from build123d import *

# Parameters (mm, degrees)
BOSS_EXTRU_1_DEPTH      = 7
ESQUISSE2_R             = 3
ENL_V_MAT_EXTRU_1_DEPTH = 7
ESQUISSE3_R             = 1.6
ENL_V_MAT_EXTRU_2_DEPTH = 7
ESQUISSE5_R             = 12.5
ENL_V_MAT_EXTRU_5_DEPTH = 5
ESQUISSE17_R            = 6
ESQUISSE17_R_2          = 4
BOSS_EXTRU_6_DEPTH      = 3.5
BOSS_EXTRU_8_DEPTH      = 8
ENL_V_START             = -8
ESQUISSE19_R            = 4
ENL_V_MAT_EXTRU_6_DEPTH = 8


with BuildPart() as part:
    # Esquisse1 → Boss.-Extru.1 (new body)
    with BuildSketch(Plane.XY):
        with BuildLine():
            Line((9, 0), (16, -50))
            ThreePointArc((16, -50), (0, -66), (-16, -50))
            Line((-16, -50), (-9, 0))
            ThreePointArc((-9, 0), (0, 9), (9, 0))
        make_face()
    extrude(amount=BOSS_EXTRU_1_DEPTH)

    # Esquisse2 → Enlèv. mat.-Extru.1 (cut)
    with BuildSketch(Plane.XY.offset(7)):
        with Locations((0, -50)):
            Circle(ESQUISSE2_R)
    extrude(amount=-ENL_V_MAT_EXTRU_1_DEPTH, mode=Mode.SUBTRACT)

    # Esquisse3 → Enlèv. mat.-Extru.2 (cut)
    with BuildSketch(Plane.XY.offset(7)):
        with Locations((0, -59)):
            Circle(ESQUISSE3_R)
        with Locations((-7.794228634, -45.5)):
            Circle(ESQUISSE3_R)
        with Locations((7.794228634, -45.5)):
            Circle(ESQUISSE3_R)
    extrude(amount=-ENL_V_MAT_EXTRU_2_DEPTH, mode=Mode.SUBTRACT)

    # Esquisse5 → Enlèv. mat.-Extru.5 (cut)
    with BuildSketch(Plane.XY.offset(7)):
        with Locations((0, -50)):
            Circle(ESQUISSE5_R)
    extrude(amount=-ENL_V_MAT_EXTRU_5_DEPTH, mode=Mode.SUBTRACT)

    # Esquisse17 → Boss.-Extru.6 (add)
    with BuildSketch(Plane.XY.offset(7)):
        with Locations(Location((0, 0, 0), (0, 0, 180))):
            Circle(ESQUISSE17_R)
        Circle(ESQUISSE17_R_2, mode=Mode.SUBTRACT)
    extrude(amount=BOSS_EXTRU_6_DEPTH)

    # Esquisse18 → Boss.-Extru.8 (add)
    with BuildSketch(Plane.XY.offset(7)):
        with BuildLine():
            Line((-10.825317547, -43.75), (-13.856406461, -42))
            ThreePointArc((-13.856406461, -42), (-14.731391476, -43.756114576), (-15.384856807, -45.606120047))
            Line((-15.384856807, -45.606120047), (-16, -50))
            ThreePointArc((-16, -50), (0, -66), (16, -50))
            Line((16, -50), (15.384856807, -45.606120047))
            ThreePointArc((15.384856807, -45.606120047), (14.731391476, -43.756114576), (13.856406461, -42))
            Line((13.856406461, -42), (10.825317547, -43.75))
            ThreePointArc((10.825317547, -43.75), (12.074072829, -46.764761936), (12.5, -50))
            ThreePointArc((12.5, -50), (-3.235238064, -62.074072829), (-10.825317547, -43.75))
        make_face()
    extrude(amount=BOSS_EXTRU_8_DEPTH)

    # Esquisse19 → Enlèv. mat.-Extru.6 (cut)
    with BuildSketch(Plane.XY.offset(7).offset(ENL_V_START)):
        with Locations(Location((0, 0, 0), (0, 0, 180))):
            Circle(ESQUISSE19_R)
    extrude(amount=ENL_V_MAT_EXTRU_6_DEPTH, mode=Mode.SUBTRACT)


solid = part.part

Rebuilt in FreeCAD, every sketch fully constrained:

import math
import FreeCAD as App
import Part
import Sketcher
Q = App.Units.Quantity

doc = App.newDocument("Part")
body = doc.addObject("PartDesign::Body", "Body")

sketch1 = body.newObject("Sketcher::SketchObject", "Sketch")
sketch1.AttachmentSupport = (doc.getObject("XY_Plane"), [""])
sketch1.MapMode = "FlatFace"
sketch1.addGeometry(Part.LineSegment(App.Vector(16, -50, 0), App.Vector(9, 0, 0)), False)
sketch1.addGeometry(Part.ArcOfCircle(Part.Circle(App.Vector(0, 0, 0), App.Vector(0, 0, 1), 9), math.radians(0), math.radians(180)), False)
sketch1.addGeometry(Part.LineSegment(App.Vector(-9, 0, 0), App.Vector(-16, -50, 0)), False)
sketch1.addGeometry(Part.ArcOfCircle(Part.Circle(App.Vector(0, -50, 0), App.Vector(0, 0, 1), 16), math.radians(180), math.radians(360)), False)
sketch1.addConstraint(Sketcher.Constraint("Coincident", 0, 2, 1, 1))
sketch1.addConstraint(Sketcher.Constraint("Coincident", 1, 2, 2, 1))
sketch1.addConstraint(Sketcher.Constraint("Coincident", 2, 2, 3, 1))
sketch1.addConstraint(Sketcher.Constraint("Coincident", 3, 2, 0, 1))
sketch1.addConstraint(Sketcher.Constraint("Coincident", 1, 3, -1, 1))
sketch1.addConstraint(Sketcher.Constraint("Symmetric", 2, 2, 3, 2, -2))
sketch1.addConstraint(Sketcher.Constraint("PointOnObject", 0, 2, -1))
sketch1.addConstraint(Sketcher.Constraint("PointOnObject", 1, 2, -1))
sketch1.addConstraint(Sketcher.Constraint("Horizontal", 3, 3, 2, 2))
sketch1.addConstraint(Sketcher.Constraint("Radius", 1, 9.0))
sketch1.addConstraint(Sketcher.Constraint("Radius", 3, 16.0))
sketch1.addConstraint(Sketcher.Constraint("DistanceY", 3, 3, -1, 1, 50.0))
pad1 = body.newObject("PartDesign::Pad", "Pad")
pad1.Profile = sketch1
pad1.Length = 7

sketch2 = body.newObject("Sketcher::SketchObject", "Sketch001")
sketch2.AttachmentSupport = (doc.getObject("XY_Plane"), [""])
sketch2.MapMode = "FlatFace"
sketch2.AttachmentOffset = App.Placement(App.Vector(0, 0, 7), App.Rotation())
sketch2.addGeometry(Part.Circle(App.Vector(0, -50, 0), App.Vector(0, 0, 1), 3), False)
sketch2.addConstraint(Sketcher.Constraint("PointOnObject", 0, 3, -2))
sketch2.addConstraint(Sketcher.Constraint("Diameter", 0, 6.0))
sketch2.addConstraint(Sketcher.Constraint("DistanceY", 0, 3, -1, 1, 50.0))
pocket1 = body.newObject("PartDesign::Pocket", "Pocket")
pocket1.Profile = sketch2
pocket1.Length = 7

sketch3 = body.newObject("Sketcher::SketchObject", "Sketch002")
sketch3.AttachmentSupport = (doc.getObject("XY_Plane"), [""])
sketch3.MapMode = "FlatFace"
sketch3.AttachmentOffset = App.Placement(App.Vector(0, 0, 7), App.Rotation())
sketch3.addGeometry(Part.Circle(App.Vector(0, -59, 0), App.Vector(0, 0, 1), 1.6), False)
sketch3.addGeometry(Part.Circle(App.Vector(-7.8, -45.5, 0), App.Vector(0, 0, 1), 1.6), False)
sketch3.addGeometry(Part.Circle(App.Vector(7.8, -45.5, 0), App.Vector(0, 0, 1), 1.6), False)
sketch3.addConstraint(Sketcher.Constraint("Equal", 0, 1))
sketch3.addConstraint(Sketcher.Constraint("Equal", 1, 2))
sketch3.addConstraint(Sketcher.Constraint("Symmetric", 1, 3, 2, 3, -2))
sketch3.addConstraint(Sketcher.Constraint("PointOnObject", 0, 3, -2))
sketch3.addConstraint(Sketcher.Constraint("Diameter", 0, 3.2))
sketch3.addConstraint(Sketcher.Constraint("DistanceY", 0, 3, -1, 1, 59.0))
sketch3.addConstraint(Sketcher.Constraint("DistanceY", 1, 3, -1, 1, 45.5))
sketch3.addConstraint(Sketcher.Constraint("DistanceX", 1, 3, -1, 1, 7.794229))
pocket2 = body.newObject("PartDesign::Pocket", "Pocket001")
pocket2.Profile = sketch3
pocket2.Length = 7

sketch4 = body.newObject("Sketcher::SketchObject", "Sketch003")
sketch4.AttachmentSupport = (doc.getObject("XY_Plane"), [""])
sketch4.MapMode = "FlatFace"
sketch4.AttachmentOffset = App.Placement(App.Vector(0, 0, 7), App.Rotation())
sketch4.addGeometry(Part.Circle(App.Vector(0, -50, 0), App.Vector(0, 0, 1), 12), False)
sketch4.addConstraint(Sketcher.Constraint("PointOnObject", 0, 3, -2))
sketch4.addConstraint(Sketcher.Constraint("Diameter", 0, 25.0))
sketch4.addConstraint(Sketcher.Constraint("DistanceY", 0, 3, -1, 1, 50.0))
pocket3 = body.newObject("PartDesign::Pocket", "Pocket002")
pocket3.Profile = sketch4
pocket3.Length = 5

sketch5 = body.newObject("Sketcher::SketchObject", "Sketch004")
sketch5.AttachmentSupport = (doc.getObject("XY_Plane"), [""])
sketch5.MapMode = "FlatFace"
sketch5.AttachmentOffset = App.Placement(App.Vector(0, 0, 7), App.Rotation())
sketch5.addGeometry(Part.Circle(App.Vector(0, 0, 0), App.Vector(0, 0, 1), 6), False)
sketch5.addGeometry(Part.Circle(App.Vector(0, 0, 0), App.Vector(0, 0, 1), 4), False)
sketch5.addConstraint(Sketcher.Constraint("Coincident", 0, 3, -1, 1))
sketch5.addConstraint(Sketcher.Constraint("Coincident", 1, 3, -1, 1))
sketch5.addConstraint(Sketcher.Constraint("Diameter", 0, 12.0))
sketch5.addConstraint(Sketcher.Constraint("Diameter", 1, 8.0))
pad2 = body.newObject("PartDesign::Pad", "Pad001")
pad2.Profile = sketch5
pad2.Length = 3.5

sketch6 = body.newObject("Sketcher::SketchObject", "Sketch005")
sketch6.AttachmentSupport = (doc.getObject("XY_Plane"), [""])
sketch6.MapMode = "FlatFace"
sketch6.AttachmentOffset = App.Placement(App.Vector(0, 0, 7), App.Rotation())
sketch6.addGeometry(Part.LineSegment(App.Vector(-10.8, -43.8, 0), App.Vector(-13.9, -42, 0)), False)
sketch6.addGeometry(Part.ArcOfCircle(Part.Circle(App.Vector(0, -50, 0), App.Vector(0, 0, 1), 16), math.radians(150), math.radians(164.06)), False)
sketch6.addGeometry(Part.LineSegment(App.Vector(-15.4, -45.6, 0), App.Vector(-16, -50, 0)), False)
sketch6.addGeometry(Part.ArcOfCircle(Part.Circle(App.Vector(0, -50, 0), App.Vector(0, 0, 1), 16), math.radians(180), math.radians(360)), False)
sketch6.addGeometry(Part.LineSegment(App.Vector(16, -50, 0), App.Vector(15.4, -45.6, 0)), False)
sketch6.addGeometry(Part.ArcOfCircle(Part.Circle(App.Vector(0, -50, 0), App.Vector(0, 0, 1), 16), math.radians(15.94), math.radians(30)), False)
sketch6.addGeometry(Part.LineSegment(App.Vector(13.9, -42, 0), App.Vector(10.8, -43.8, 0)), False)
sketch6.addGeometry(Part.ArcOfCircle(Part.Circle(App.Vector(0, -50, 0), App.Vector(0, 0, 1), 12.5), math.radians(0), math.radians(30)), False)
sketch6.addGeometry(Part.ArcOfCircle(Part.Circle(App.Vector(0, -50, 0), App.Vector(0, 0, 1), 12.5), math.radians(150), math.radians(360)), False)
sketch6.addConstraint(Sketcher.Constraint("Coincident", 0, 2, 1, 1))
sketch6.addConstraint(Sketcher.Constraint("Coincident", 1, 2, 2, 1))
sketch6.addConstraint(Sketcher.Constraint("Coincident", 2, 2, 3, 1))
sketch6.addConstraint(Sketcher.Constraint("Coincident", 3, 2, 4, 1))
sketch6.addConstraint(Sketcher.Constraint("Coincident", 4, 2, 5, 1))
sketch6.addConstraint(Sketcher.Constraint("Coincident", 5, 2, 6, 1))
sketch6.addConstraint(Sketcher.Constraint("Coincident", 6, 2, 7, 2))
sketch6.addConstraint(Sketcher.Constraint("Tangent", 7, 1, 8, 2))
sketch6.addConstraint(Sketcher.Constraint("Coincident", 8, 1, 0, 1))
sketch6.addConstraint(Sketcher.Constraint("Coincident", 3, 3, 1, 3))
sketch6.addConstraint(Sketcher.Constraint("Coincident", 5, 3, 1, 3))
sketch6.addConstraint(Sketcher.Constraint("Coincident", 7, 3, 1, 3))
sketch6.addConstraint(Sketcher.Constraint("Equal", 1, 3))
sketch6.addConstraint(Sketcher.Constraint("Equal", 3, 5))
sketch6.addConstraint(Sketcher.Constraint("Equal", 7, 8))
sketch6.addConstraint(Sketcher.Constraint("Symmetric", 2, 2, 3, 2, -2))
sketch6.addConstraint(Sketcher.Constraint("Horizontal", 8, 3, 2, 2))
sketch6.addConstraint(Sketcher.Constraint("Horizontal", 1, 2, 4, 2))
sketch6.addConstraint(Sketcher.Constraint("Horizontal", 0, 2, 5, 2))
sketch6.addConstraint(Sketcher.Constraint("Horizontal", 3, 2, 7, 1))
sketch6.addConstraint(Sketcher.Constraint("Horizontal", 6, 2, 8, 1))
sketch6.addConstraint(Sketcher.Constraint("Radius", 1, 16.0))
sketch6.addConstraint(Sketcher.Constraint("Radius", 7, 12.5))
sketch6.addConstraint(Sketcher.Constraint("Angle", 0, Q("150 deg")))
sketch6.addConstraint(Sketcher.Constraint("DistanceY", 1, 3, -1, 1, 50.0))
sketch6.addConstraint(Sketcher.Constraint("DistanceY", 0, 2, -1, 1, 42.0))
sketch6.addConstraint(Sketcher.Constraint("Distance", 2, 4.436731))
pad3 = body.newObject("PartDesign::Pad", "Pad002")
pad3.Profile = sketch6
pad3.Length = 8

sketch7 = body.newObject("Sketcher::SketchObject", "Sketch006")
sketch7.AttachmentSupport = (doc.getObject("XY_Plane"), [""])
sketch7.MapMode = "FlatFace"
sketch7.AttachmentOffset = App.Placement(App.Vector(0, 0, -1), App.Rotation())
sketch7.addGeometry(Part.Circle(App.Vector(0, 0, 0), App.Vector(0, 0, 1), 4), False)
sketch7.addConstraint(Sketcher.Constraint("Coincident", 0, 3, -1, 1))
sketch7.addConstraint(Sketcher.Constraint("Diameter", 0, 8.0))
pocket4 = body.newObject("PartDesign::Pocket", "Pocket003")
pocket4.Profile = sketch7
pocket4.Length = 8
pocket4.Reversed = True

doc.recompute()
